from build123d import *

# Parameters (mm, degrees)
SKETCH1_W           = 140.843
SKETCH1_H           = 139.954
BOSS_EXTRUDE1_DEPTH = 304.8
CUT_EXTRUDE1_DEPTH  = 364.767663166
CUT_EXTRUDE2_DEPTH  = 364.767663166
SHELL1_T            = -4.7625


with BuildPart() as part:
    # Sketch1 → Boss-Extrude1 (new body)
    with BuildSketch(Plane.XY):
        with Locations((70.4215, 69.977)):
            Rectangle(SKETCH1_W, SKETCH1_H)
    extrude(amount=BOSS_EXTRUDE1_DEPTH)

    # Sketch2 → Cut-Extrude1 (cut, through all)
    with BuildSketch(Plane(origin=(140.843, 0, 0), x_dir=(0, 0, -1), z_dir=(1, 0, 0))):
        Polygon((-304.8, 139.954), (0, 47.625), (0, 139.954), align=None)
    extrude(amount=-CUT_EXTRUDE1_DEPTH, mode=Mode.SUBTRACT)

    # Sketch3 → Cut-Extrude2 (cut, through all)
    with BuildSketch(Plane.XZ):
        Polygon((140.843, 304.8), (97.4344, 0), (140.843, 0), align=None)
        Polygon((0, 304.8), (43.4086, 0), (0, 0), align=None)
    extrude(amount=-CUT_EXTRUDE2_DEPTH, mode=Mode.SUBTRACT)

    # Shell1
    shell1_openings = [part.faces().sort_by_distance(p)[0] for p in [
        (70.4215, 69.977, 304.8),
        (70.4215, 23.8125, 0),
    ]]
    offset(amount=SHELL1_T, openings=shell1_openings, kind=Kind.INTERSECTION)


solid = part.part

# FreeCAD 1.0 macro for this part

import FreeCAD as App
import Part
import Sketcher
from FreeCAD import Vector
Q = App.Units.Quantity


def faces_at(feature, points):
    """Names of the faces that lie closest to the given points."""
    faces = feature.Shape.Faces
    near = lambda p: min(range(len(faces)), key=lambda i: faces[i].distToShape(Part.Vertex(*p))[0])
    return sorted({f"Face{near(p) + 1}" for p in points})


def add_polygon(sketch, points):
    """Adds a closed chain of lines whose ends are joined by coincident constraints."""
    first, n = sketch.GeometryCount, len(points)
    for a, b in zip(points, points[1:] + points[:1]):
        sketch.addGeometry(Part.LineSegment(App.Vector(*a, 0), App.Vector(*b, 0)), False)
    for i in range(n):
        sketch.addConstraint(Sketcher.Constraint("Coincident", first + i, 2, first + (i + 1) % n, 1))

doc = App.newDocument("Part")
body = doc.addObject("PartDesign::Body", "Body")

sketch1 = body.newObject("Sketcher::SketchObject", "Sketch")
sketch1.AttachmentSupport = (doc.getObject("XY_Plane"), [""])
sketch1.MapMode = "FlatFace"
add_polygon(sketch1, [(0, 140), (0, 0), (141, 0), (141, 140)])
sketch1.addConstraint(Sketcher.Constraint("Vertical", 0))
sketch1.addConstraint(Sketcher.Constraint("Horizontal", 1))
sketch1.addConstraint(Sketcher.Constraint("Vertical", 2))
sketch1.addConstraint(Sketcher.Constraint("Horizontal", 3))
sketch1.addConstraint(Sketcher.Constraint("Coincident", 0, 2, -1, 1))
sketch1.addConstraint(Sketcher.Constraint("DistanceY", 0, 2, 0, 1, Q("5.51 in")))
sketch1.addConstraint(Sketcher.Constraint("DistanceX", 1, 1, 1, 2, Q("5.545 in")))
pad1 = body.newObject("PartDesign::Pad", "Pad")
pad1.Profile = sketch1
pad1.Length = Q("12 in")

sketch2 = body.newObject("Sketcher::SketchObject", "Sketch001")
sketch2.AttachmentSupport = (doc.getObject("YZ_Plane"), [""])
sketch2.MapMode = "FlatFace"
sketch2.AttachmentOffset = App.Placement(Vector(0, 0, 5.545 * 25.4), App.Rotation())
add_polygon(sketch2, [(140, 305), (48, 0), (140, 0)])
sketch2.addConstraint(Sketcher.Constraint("Horizontal", 1))
sketch2.addConstraint(Sketcher.Constraint("Vertical", 2))
sketch2.addConstraint(Sketcher.Constraint("PointOnObject", 0, 2, -1))
sketch2.addConstraint(Sketcher.Constraint("DistanceY", 2, 1, 2, 2, Q("12 in")))
sketch2.addConstraint(Sketcher.Constraint("DistanceX", 1, 1, 1, 2, Q("3.635 in")))
sketch2.addConstraint(Sketcher.Constraint("DistanceX", -1, 1, 1, 2, Q("5.51 in")))
pocket1 = body.newObject("PartDesign::Pocket", "Pocket")
pocket1.Profile = sketch2
pocket1.Type = "ThroughAll"

sketch3 = body.newObject("Sketcher::SketchObject", "Sketch002")
sketch3.AttachmentSupport = (doc.getObject("XZ_Plane"), [""])
sketch3.MapMode = "FlatFace"
add_polygon(sketch3, [(141, 305), (97, 0), (141, 0)])
add_polygon(sketch3, [(43, 0), (0, 305), (0, 0)])
sketch3.addConstraint(Sketcher.Constraint("Horizontal", 1))
sketch3.addConstraint(Sketcher.Constraint("Vertical", 2))
sketch3.addConstraint(Sketcher.Constraint("Vertical", 4))
sketch3.addConstraint(Sketcher.Constraint("Horizontal", 5))
sketch3.addConstraint(Sketcher.Constraint("Coincident", 4, 2, -1, 1))
sketch3.addConstraint(Sketcher.Constraint("PointOnObject", 0, 2, -1))
sketch3.addConstraint(Sketcher.Constraint("Horizontal", 2, 2, 3, 2))
sketch3.addConstraint(Sketcher.Constraint("Equal", 1, 5))
sketch3.addConstraint(Sketcher.Constraint("DistanceY", 2, 1, 2, 2, Q("12 in")))
sketch3.addConstraint(Sketcher.Constraint("DistanceX", 1, 1, 1, 2, Q("1.709 in")))
sketch3.addConstraint(Sketcher.Constraint("DistanceX", -1, 1, 0, 2, Q("3.836 in")))
pocket2 = body.newObject("PartDesign::Pocket", "Pocket001")
pocket2.Profile = sketch3
pocket2.Type = "ThroughAll"
doc.recompute()

thickness = body.newObject("PartDesign::Thickness", "Thickness")
thickness.Base = (pocket2, faces_at(pocket2, [(70.421, 69.977, 304.8), (70.421, 23.812, 0)]))
thickness.Value = Q("0.1875 in")
thickness.Reversed = True
thickness.Join = "Intersection"

doc.recompute()
